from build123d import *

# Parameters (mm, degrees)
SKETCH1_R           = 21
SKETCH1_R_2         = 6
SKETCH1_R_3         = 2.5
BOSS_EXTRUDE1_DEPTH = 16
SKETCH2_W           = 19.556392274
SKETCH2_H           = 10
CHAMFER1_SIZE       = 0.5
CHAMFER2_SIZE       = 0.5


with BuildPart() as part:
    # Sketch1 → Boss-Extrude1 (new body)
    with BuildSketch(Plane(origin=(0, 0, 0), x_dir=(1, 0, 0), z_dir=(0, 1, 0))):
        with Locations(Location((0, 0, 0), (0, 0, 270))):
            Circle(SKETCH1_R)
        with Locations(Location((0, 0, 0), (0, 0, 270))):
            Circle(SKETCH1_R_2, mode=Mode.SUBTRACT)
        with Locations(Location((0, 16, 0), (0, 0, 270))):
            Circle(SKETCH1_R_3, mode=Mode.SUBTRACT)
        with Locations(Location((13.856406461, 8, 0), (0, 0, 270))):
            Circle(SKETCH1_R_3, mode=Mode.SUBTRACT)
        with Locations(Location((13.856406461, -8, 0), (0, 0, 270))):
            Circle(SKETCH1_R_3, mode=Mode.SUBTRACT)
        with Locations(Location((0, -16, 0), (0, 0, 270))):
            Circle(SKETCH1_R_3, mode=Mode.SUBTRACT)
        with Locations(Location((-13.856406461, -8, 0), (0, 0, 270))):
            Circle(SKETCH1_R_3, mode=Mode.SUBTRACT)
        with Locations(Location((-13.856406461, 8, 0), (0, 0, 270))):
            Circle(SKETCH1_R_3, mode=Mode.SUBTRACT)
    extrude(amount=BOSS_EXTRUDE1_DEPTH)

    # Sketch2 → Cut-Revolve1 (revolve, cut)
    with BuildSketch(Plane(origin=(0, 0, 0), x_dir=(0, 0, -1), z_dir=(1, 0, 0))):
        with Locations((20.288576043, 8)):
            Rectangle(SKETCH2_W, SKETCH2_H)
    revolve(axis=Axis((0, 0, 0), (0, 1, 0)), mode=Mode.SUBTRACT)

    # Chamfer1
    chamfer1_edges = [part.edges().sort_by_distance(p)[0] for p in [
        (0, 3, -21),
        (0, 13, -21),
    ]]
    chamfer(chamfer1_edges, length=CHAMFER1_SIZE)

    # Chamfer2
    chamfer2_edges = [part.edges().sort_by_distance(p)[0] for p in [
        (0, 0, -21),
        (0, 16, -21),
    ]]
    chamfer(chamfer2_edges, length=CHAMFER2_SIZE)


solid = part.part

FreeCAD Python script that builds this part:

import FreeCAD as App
import Part
import Sketcher


def edges_at(feature, points):
    """Names of the edges that pass closest to the given points."""
    edges = feature.Shape.Edges
    near = lambda p: min(range(len(edges)), key=lambda i: edges[i].distToShape(Part.Vertex(*p))[0])
    return sorted({f"Edge{near(p) + 1}" for p in points})

doc = App.newDocument("Part")
body = doc.addObject("PartDesign::Body", "Body")

sketch1 = doc.addObject("Sketcher::SketchObject", "Sketch")
body.addObject(sketch1)
sketch1.AttachmentSupport = (doc.XZ_Plane, [""])
sketch1.MapMode = "FlatFace"
sketch1.addGeometry([
    Part.Circle(App.Vector(0, 0, 0), App.Vector(0, 0, 1), 21),
    Part.Circle(App.Vector(-13.9, -8, 0), App.Vector(0, 0, 1), 2.5),
    Part.Circle(App.Vector(0, -16, 0), App.Vector(0, 0, 1), 2.5),
    Part.Circle(App.Vector(-13.9, 8, 0), App.Vector(0, 0, 1), 2.5),
    Part.Circle(App.Vector(13.9, -8, 0), App.Vector(0, 0, 1), 2.5),
    Part.Circle(App.Vector(0, 0, 0), App.Vector(0, 0, 1), 6),
    Part.Circle(App.Vector(0, 16, 0), App.Vector(0, 0, 1), 2.5),
    Part.Circle(App.Vector(13.9, 8, 0), App.Vector(0, 0, 1), 2.5),
], False)
sketch1.addConstraint([
    Sketcher.Constraint("Coincident", 0, 3, -1, 1),
    Sketcher.Constraint("Coincident", 5, 3, -1, 1),
    Sketcher.Constraint("Equal", 1, 2),
    Sketcher.Constraint("Equal", 2, 3),
    Sketcher.Constraint("Equal", 3, 4),
    Sketcher.Constraint("Equal", 4, 6),
    Sketcher.Constraint("Equal", 6, 7),
    Sketcher.Constraint("Symmetric", 3, 3, 4, 3, -1, 1),
    Sketcher.Constraint("Symmetric", 2, 3, 6, 3, -1, 1),
    Sketcher.Constraint("Symmetric", 1, 3, 7, 3, -1, 1),
    Sketcher.Constraint("Symmetric", 1, 3, 4, 3, -2),
    Sketcher.Constraint("PointOnObject", 2, 3, -2),
    Sketcher.Constraint("Diameter", 0, 42.0),
    Sketcher.Constraint("Diameter", 1, 5.0),
    Sketcher.Constraint("Diameter", 5, 12.0),
    Sketcher.Constraint("DistanceY", 1, 3, -1, 1, 8.0),
    Sketcher.Constraint("DistanceY", 2, 3, -1, 1, 16.0),
    Sketcher.Constraint("DistanceX", 1, 3, -1, 1, 13.856406),
])
pad1 = doc.addObject("PartDesign::Pad", "Pad")
body.addObject(pad1)
pad1.Profile = sketch1
pad1.Length = 16
pad1.Reversed = True

sketch2 = doc.addObject("Sketcher::SketchObject", "Sketch001")
body.addObject(sketch2)
sketch2.AttachmentSupport = (doc.YZ_Plane, [""])
sketch2.MapMode = "FlatFace"
sketch2.addGeometry([
    Part.LineSegment(App.Vector(13, -11, 0), App.Vector(3, -11, 0)),
    Part.LineSegment(App.Vector(3, -11, 0), App.Vector(3, -30, 0)),
    Part.LineSegment(App.Vector(3, -30, 0), App.Vector(13, -30, 0)),
    Part.LineSegment(App.Vector(13, -30, 0), App.Vector(13, -11, 0)),
], False)
sketch2.addConstraint([
    Sketcher.Constraint("Coincident", 0, 2, 1, 1),
    Sketcher.Constraint("Coincident", 1, 2, 2, 1),
    Sketcher.Constraint("Coincident", 2, 2, 3, 1),
    Sketcher.Constraint("Coincident", 3, 2, 0, 1),
    Sketcher.Constraint("Horizontal", 0),
    Sketcher.Constraint("Vertical", 1),
    Sketcher.Constraint("Horizontal", 2),
    Sketcher.Constraint("Vertical", 3),
    Sketcher.Constraint("DistanceX", 0, 2, 0, 1, 10.0),
    Sketcher.Constraint("DistanceX", -1, 1, 0, 2, 3.0),
    Sketcher.Constraint("DistanceY", 1, 2, 1, 1, 19.556392),
    Sketcher.Constraint("DistanceY", 0, 2, -1, 1, 10.51038),
])
groove = doc.addObject("PartDesign::Groove", "Groove")
body.addObject(groove)
groove.Profile = sketch2
groove.ReferenceAxis = (sketch2, ["H_Axis"])
groove.Angle = 360
doc.recompute()

chamfer = doc.addObject("PartDesign::Chamfer", "Chamfer")
body.addObject(chamfer)
chamfer.Base = (groove, edges_at(groove, [(0, 3, -21), (0, 13, -21)]))
chamfer.Size = 0.5
doc.recompute()

chamfer2 = doc.addObject("PartDesign::Chamfer", "Chamfer001")
body.addObject(chamfer2)
chamfer2.Base = (chamfer, edges_at(chamfer, [(0, 0, -21), (0, 16, -21)]))
chamfer2.Size = 0.5

doc.recompute()
